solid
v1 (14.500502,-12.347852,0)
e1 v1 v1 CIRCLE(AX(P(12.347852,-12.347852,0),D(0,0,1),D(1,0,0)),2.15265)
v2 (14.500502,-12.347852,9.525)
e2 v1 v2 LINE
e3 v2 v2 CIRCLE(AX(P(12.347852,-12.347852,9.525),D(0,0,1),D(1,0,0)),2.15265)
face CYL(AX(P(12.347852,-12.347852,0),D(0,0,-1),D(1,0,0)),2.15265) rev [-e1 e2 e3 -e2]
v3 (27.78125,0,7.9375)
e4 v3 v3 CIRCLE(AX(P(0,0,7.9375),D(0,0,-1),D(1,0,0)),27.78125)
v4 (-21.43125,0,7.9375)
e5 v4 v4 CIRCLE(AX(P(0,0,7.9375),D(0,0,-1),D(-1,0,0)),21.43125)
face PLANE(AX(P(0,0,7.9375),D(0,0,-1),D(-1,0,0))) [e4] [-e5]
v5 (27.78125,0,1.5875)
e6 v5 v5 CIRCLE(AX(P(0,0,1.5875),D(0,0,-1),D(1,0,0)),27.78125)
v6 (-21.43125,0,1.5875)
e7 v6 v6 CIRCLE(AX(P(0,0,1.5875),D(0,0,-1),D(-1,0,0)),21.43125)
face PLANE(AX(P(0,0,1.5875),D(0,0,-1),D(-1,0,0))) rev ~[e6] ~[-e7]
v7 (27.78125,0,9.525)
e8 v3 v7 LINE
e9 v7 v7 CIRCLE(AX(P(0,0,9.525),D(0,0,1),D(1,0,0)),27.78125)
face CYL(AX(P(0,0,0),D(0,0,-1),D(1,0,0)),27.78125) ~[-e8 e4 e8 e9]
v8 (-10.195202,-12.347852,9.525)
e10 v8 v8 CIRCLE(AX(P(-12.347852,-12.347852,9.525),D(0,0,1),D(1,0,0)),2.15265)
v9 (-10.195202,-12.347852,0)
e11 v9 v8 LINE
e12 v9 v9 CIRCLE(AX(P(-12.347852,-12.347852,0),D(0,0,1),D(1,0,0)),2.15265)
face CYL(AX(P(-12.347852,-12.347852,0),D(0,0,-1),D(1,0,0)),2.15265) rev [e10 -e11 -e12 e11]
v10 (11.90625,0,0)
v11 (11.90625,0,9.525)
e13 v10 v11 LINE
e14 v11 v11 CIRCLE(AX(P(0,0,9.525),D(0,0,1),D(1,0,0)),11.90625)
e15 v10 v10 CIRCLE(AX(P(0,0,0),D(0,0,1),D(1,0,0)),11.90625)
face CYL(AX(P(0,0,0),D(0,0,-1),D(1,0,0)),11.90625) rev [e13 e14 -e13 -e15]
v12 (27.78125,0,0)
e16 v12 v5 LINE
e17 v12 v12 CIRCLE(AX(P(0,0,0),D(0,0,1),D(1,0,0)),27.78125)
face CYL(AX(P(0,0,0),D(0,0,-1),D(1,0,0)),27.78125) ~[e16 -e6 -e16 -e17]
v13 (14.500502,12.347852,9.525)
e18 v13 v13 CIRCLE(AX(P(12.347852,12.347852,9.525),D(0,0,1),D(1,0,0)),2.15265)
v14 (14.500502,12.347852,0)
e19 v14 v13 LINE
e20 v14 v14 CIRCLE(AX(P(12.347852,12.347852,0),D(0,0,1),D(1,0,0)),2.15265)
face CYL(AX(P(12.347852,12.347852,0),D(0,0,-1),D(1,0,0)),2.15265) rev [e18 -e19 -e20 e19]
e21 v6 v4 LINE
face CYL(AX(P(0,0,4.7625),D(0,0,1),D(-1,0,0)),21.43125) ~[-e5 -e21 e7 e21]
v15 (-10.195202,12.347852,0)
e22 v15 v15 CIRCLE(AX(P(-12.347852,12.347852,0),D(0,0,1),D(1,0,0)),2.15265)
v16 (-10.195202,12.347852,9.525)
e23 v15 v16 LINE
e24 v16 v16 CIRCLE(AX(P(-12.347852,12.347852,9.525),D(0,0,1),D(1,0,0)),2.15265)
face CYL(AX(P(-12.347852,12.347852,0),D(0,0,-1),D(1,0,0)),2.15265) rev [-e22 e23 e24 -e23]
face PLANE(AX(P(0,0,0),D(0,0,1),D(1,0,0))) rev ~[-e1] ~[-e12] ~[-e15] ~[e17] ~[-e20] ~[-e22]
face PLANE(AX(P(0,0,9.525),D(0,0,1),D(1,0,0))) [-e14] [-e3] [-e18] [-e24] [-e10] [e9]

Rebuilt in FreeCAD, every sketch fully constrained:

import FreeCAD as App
import Part
import Sketcher
from FreeCAD import Vector
Q = App.Units.Quantity

doc = App.newDocument("Part")
body = doc.addObject("PartDesign::Body", "Body")

sketch1 = body.newObject("Sketcher::SketchObject", "Sketch")
sketch1.AttachmentSupport = (doc.getObject("XY_Plane"), [""])
sketch1.MapMode = "FlatFace"
sketch1.addGeometry([
    Part.Circle(Vector(0, 0, 0), Vector(0, 0, 1), 27.78125),
    Part.Circle(Vector(-12.347852, -12.347852, 0), Vector(0, 0, 1), 2.15265),
    Part.Circle(Vector(12.347852, -12.347852, 0), Vector(0, 0, 1), 2.15265),
    Part.Circle(Vector(-12.347852, 12.347852, 0), Vector(0, 0, 1), 2.15265),
    Part.Circle(Vector(0, 0, 0), Vector(0, 0, 1), 11.90625),
    Part.Circle(Vector(12.347852, 12.347852, 0), Vector(0, 0, 1), 2.15265),
], False)
sketch1.addConstraint([
    Sketcher.Constraint("Coincident", 0, 3, -1, 1),
    Sketcher.Constraint("Coincident", 4, 3, -1, 1),
    Sketcher.Constraint("Equal", 1, 2),
    Sketcher.Constraint("Equal", 2, 3),
    Sketcher.Constraint("Equal", 3, 5),
    Sketcher.Constraint("Symmetric", 2, 3, 3, 3, -1, 1),
    Sketcher.Constraint("Symmetric", 1, 3, 5, 3, -1, 1),
    Sketcher.Constraint("Symmetric", 1, 3, 2, 3, -2),
    Sketcher.Constraint("Diameter", 0, Q("2.1875 in")),
    Sketcher.Constraint("Diameter", 4, Q("0.9375 in")),
    Sketcher.Constraint("Diameter", 1, Q("0.1695 in")),
    Sketcher.Constraint("DistanceX", 1, 3, -1, 1, Q("12.347852 mm")),
    Sketcher.Constraint("DistanceY", 1, 3, -1, 1, Q("12.347852 mm")),
])
pad1 = body.newObject("PartDesign::Pad", "Pad")
pad1.Profile = sketch1
pad1.Length = Q("0.375 in")

sketch2 = body.newObject("Sketcher::SketchObject", "Sketch001")
sketch2.AttachmentSupport = (doc.getObject("XZ_Plane"), [""])
sketch2.MapMode = "FlatFace"
sketch2.addGeometry([
    Part.LineSegment(Vector(-42.8625, 7.9375, 0), Vector(-42.8625, 1.5875, 0)),
    Part.LineSegment(Vector(-42.8625, 1.5875, 0), Vector(-21.43125, 1.5875, 0)),
    Part.LineSegment(Vector(-21.43125, 1.5875, 0), Vector(-21.43125, 7.9375, 0)),
    Part.LineSegment(Vector(-21.43125, 7.9375, 0), Vector(-42.8625, 7.9375, 0)),
], False)
sketch2.addConstraint([
    Sketcher.Constraint("Coincident", 0, 2, 1, 1),
    Sketcher.Constraint("Coincident", 1, 2, 2, 1),
    Sketcher.Constraint("Coincident", 2, 2, 3, 1),
    Sketcher.Constraint("Coincident", 3, 2, 0, 1),
    Sketcher.Constraint("Vertical", 0),
    Sketcher.Constraint("Horizontal", 1),
    Sketcher.Constraint("Vertical", 2),
    Sketcher.Constraint("Horizontal", 3),
    Sketcher.Constraint("DistanceY", 0, 2, 0, 1, Q("0.25 in")),
    Sketcher.Constraint("DistanceX", 1, 1, 1, 2, Q("0.84375 in")),
    Sketcher.Constraint("DistanceX", 0, 2, -1, 1, Q("1.6875 in")),
    Sketcher.Constraint("DistanceY", -1, 1, 0, 2, Q("0.0625 in")),
])
groove = body.newObject("PartDesign::Groove", "Groove")
groove.Profile = sketch2
groove.ReferenceAxis = (sketch2, ["V_Axis"])
groove.Angle = 360

doc.recompute()
